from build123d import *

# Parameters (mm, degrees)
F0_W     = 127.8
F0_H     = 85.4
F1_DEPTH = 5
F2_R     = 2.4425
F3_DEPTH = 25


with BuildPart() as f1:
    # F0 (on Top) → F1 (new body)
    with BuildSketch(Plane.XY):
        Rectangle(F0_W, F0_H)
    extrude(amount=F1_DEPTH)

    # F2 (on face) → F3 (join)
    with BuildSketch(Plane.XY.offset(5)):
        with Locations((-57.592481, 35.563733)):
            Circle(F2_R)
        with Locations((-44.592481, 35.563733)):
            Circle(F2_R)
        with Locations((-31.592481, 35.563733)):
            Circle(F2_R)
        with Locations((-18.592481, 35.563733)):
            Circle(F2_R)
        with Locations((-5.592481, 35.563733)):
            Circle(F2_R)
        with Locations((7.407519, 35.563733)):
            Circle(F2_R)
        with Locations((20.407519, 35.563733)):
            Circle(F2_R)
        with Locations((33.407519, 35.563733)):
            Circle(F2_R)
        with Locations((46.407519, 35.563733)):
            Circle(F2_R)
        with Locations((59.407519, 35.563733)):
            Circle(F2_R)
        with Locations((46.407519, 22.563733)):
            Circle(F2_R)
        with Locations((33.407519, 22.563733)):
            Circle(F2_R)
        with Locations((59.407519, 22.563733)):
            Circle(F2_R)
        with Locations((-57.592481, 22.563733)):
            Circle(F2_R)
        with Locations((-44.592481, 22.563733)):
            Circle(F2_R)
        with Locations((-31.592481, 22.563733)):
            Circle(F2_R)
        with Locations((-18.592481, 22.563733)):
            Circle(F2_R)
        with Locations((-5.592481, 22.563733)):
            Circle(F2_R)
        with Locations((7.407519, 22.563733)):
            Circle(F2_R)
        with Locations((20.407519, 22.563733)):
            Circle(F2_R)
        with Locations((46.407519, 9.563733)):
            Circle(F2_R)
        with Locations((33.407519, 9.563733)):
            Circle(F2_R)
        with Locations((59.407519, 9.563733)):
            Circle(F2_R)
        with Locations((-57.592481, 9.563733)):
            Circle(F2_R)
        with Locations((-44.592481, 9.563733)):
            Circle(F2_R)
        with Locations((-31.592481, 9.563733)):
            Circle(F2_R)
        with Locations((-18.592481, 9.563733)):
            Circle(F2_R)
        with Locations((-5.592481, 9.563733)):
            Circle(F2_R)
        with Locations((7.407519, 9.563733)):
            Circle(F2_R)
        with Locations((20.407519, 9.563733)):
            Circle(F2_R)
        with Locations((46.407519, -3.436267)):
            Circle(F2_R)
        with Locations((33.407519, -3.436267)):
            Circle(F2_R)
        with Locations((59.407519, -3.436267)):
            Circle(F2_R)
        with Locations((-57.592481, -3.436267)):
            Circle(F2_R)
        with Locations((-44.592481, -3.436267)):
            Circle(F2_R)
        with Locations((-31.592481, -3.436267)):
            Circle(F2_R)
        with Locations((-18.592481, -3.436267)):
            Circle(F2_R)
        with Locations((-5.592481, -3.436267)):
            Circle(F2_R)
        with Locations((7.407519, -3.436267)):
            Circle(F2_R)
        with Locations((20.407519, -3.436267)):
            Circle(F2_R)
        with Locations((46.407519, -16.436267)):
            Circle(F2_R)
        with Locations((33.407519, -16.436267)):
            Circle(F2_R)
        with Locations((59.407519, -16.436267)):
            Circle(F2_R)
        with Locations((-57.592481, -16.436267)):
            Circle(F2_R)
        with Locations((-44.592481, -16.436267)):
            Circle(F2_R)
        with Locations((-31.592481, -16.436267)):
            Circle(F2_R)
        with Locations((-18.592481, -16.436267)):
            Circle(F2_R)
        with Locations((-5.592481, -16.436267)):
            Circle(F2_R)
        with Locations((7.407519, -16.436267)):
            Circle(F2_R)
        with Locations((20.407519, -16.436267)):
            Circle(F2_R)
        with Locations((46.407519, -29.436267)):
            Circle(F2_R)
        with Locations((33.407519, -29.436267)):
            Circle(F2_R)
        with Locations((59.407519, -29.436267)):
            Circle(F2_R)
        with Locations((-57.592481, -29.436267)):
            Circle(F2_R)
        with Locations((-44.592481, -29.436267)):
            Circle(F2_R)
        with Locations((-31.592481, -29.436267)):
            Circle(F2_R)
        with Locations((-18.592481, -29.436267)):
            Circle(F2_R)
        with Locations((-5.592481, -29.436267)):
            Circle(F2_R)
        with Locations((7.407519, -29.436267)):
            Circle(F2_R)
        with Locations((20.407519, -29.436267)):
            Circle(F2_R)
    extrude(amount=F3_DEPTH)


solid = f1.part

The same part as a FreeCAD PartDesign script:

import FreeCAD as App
import Part
import Sketcher
from FreeCAD import Vector


def add_polygon(sketch, points):
    """Adds a closed chain of lines whose ends are joined by coincident constraints."""
    first, n = sketch.GeometryCount, len(points)
    for a, b in zip(points, points[1:] + points[:1]):
        sketch.addGeometry(Part.LineSegment(App.Vector(*a, 0), App.Vector(*b, 0)), False)
    for i in range(n):
        sketch.addConstraint(Sketcher.Constraint("Coincident", first + i, 2, first + (i + 1) % n, 1))

doc = App.newDocument("Part")
body = doc.addObject("PartDesign::Body", "Body")

# Sketch on XY plane
sketch1 = body.newObject("Sketcher::SketchObject", "Sketch")
sketch1.AttachmentSupport = (doc.getObject("XY_Plane"), [""])
sketch1.MapMode = "FlatFace"
add_polygon(sketch1, [(-64, 43), (-64, -43), (64, -43), (64, 43)])  # lines 0-3
sketch1.addConstraint(Sketcher.Constraint("Vertical", 0))
sketch1.addConstraint(Sketcher.Constraint("Horizontal", 1))
sketch1.addConstraint(Sketcher.Constraint("Vertical", 2))
sketch1.addConstraint(Sketcher.Constraint("Horizontal", 3))
sketch1.addConstraint(Sketcher.Constraint("Symmetric", 0, 2, 2, 2, -1, 1))
sketch1.addConstraint(Sketcher.Constraint("DistanceX", 1, 1, 1, 2, 127.8))
sketch1.addConstraint(Sketcher.Constraint("DistanceY", 0, 2, 0, 1, 85.4))
pad1 = body.newObject("PartDesign::Pad", "Pad")
pad1.Profile = sketch1
pad1.Length = 5

# Sketch on XY plane
sketch2 = body.newObject("Sketcher::SketchObject", "Sketch001")
sketch2.AttachmentSupport = (doc.getObject("XY_Plane"), [""])
sketch2.MapMode = "FlatFace"
sketch2.AttachmentOffset = App.Placement(Vector(0, 0, 5), App.Rotation())
sketch2.addGeometry(Part.Circle(Vector(-57.6, 35.6, 0), Vector(0, 0, 1), 2.4), False)
sketch2.addGeometry(Part.Circle(Vector(-44.6, 35.6, 0), Vector(0, 0, 1), 2.4), False)
sketch2.addGeometry(Part.Circle(Vector(-31.6, 35.6, 0), Vector(0, 0, 1), 2.4), False)
sketch2.addGeometry(Part.Circle(Vector(-18.6, 35.6, 0), Vector(0, 0, 1), 2.4), False)
sketch2.addGeometry(Part.Circle(Vector(-5.6, 35.6, 0), Vector(0, 0, 1), 2.4), False)
sketch2.addGeometry(Part.Circle(Vector(7.4, 35.6, 0), Vector(0, 0, 1), 2.4), False)
sketch2.addGeometry(Part.Circle(Vector(20.4, 35.6, 0), Vector(0, 0, 1), 2.4), False)
sketch2.addGeometry(Part.Circle(Vector(33.4, 35.6, 0), Vector(0, 0, 1), 2.4), False)
sketch2.addGeometry(Part.Circle(Vector(46.4, 35.6, 0), Vector(0, 0, 1), 2.4), False)
sketch2.addGeometry(Part.Circle(Vector(59.4, 35.6, 0), Vector(0, 0, 1), 2.4), False)
sketch2.addGeometry(Part.Circle(Vector(46.4, 22.6, 0), Vector(0, 0, 1), 2.4), False)
sketch2.addGeometry(Part.Circle(Vector(33.4, 22.6, 0), Vector(0, 0, 1), 2.4), False)
sketch2.addGeometry(Part.Circle(Vector(59.4, 22.6, 0), Vector(0, 0, 1), 2.4), False)
sketch2.addGeometry(Part.Circle(Vector(-57.6, 22.6, 0), Vector(0, 0, 1), 2.4), False)
sketch2.addGeometry(Part.Circle(Vector(-44.6, 22.6, 0), Vector(0, 0, 1), 2.4), False)
sketch2.addGeometry(Part.Circle(Vector(-31.6, 22.6, 0), Vector(0, 0, 1), 2.4), False)
sketch2.addGeometry(Part.Circle(Vector(-18.6, 22.6, 0), Vector(0, 0, 1), 2.4), False)
sketch2.addGeometry(Part.Circle(Vector(-5.6, 22.6, 0), Vector(0, 0, 1), 2.4), False)
sketch2.addGeometry(Part.Circle(Vector(7.4, 22.6, 0), Vector(0, 0, 1), 2.4), False)
sketch2.addGeometry(Part.Circle(Vector(20.4, 22.6, 0), Vector(0, 0, 1), 2.4), False)
sketch2.addGeometry(Part.Circle(Vector(46.4, 9.6, 0), Vector(0, 0, 1), 2.4), False)
sketch2.addGeometry(Part.Circle(Vector(33.4, 9.6, 0), Vector(0, 0, 1), 2.4), False)
sketch2.addGeometry(Part.Circle(Vector(59.4, 9.6, 0), Vector(0, 0, 1), 2.4), False)
sketch2.addGeometry(Part.Circle(Vector(-57.6, 9.6, 0), Vector(0, 0, 1), 2.4), False)
sketch2.addGeometry(Part.Circle(Vector(-44.6, 9.6, 0), Vector(0, 0, 1), 2.4), False)
sketch2.addGeometry(Part.Circle(Vector(-31.6, 9.6, 0), Vector(0, 0, 1), 2.4), False)
sketch2.addGeometry(Part.Circle(Vector(-18.6, 9.6, 0), Vector(0, 0, 1), 2.4), False)
sketch2.addGeometry(Part.Circle(Vector(-5.6, 9.6, 0), Vector(0, 0, 1), 2.4), False)
sketch2.addGeometry(Part.Circle(Vector(7.4, 9.6, 0), Vector(0, 0, 1), 2.4), False)
sketch2.addGeometry(Part.Circle(Vector(20.4, 9.6, 0), Vector(0, 0, 1), 2.4), False)
sketch2.addGeometry(Part.Circle(Vector(46.4, -3.4, 0), Vector(0, 0, 1), 2.4), False)
sketch2.addGeometry(Part.Circle(Vector(33.4, -3.4, 0), Vector(0, 0, 1), 2.4), False)
sketch2.addGeometry(Part.Circle(Vector(59.4, -3.4, 0), Vector(0, 0, 1), 2.4), False)
sketch2.addGeometry(Part.Circle(Vector(-57.6, -3.4, 0), Vector(0, 0, 1), 2.4), False)
sketch2.addGeometry(Part.Circle(Vector(-44.6, -3.4, 0), Vector(0, 0, 1), 2.4), False)
sketch2.addGeometry(Part.Circle(Vector(-31.6, -3.4, 0), Vector(0, 0, 1), 2.4), False)
sketch2.addGeometry(Part.Circle(Vector(-18.6, -3.4, 0), Vector(0, 0, 1), 2.4), False)
sketch2.addGeometry(Part.Circle(Vector(-5.6, -3.4, 0), Vector(0, 0, 1), 2.4), False)
sketch2.addGeometry(Part.Circle(Vector(7.4, -3.4, 0), Vector(0, 0, 1), 2.4), False)
sketch2.addGeometry(Part.Circle(Vector(20.4, -3.4, 0), Vector(0, 0, 1), 2.4), False)
sketch2.addGeometry(Part.Circle(Vector(46.4, -16.4, 0), Vector(0, 0, 1), 2.4), False)
sketch2.addGeometry(Part.Circle(Vector(33.4, -16.4, 0), Vector(0, 0, 1), 2.4), False)
sketch2.addGeometry(Part.Circle(Vector(59.4, -16.4, 0), Vector(0, 0, 1), 2.4), False)
sketch2.addGeometry(Part.Circle(Vector(-57.6, -16.4, 0), Vector(0, 0, 1), 2.4), False)
sketch2.addGeometry(Part.Circle(Vector(-44.6, -16.4, 0), Vector(0, 0, 1), 2.4), False)
sketch2.addGeometry(Part.Circle(Vector(-31.6, -16.4, 0), Vector(0, 0, 1), 2.4), False)
sketch2.addGeometry(Part.Circle(Vector(-18.6, -16.4, 0), Vector(0, 0, 1), 2.4), False)
sketch2.addGeometry(Part.Circle(Vector(-5.6, -16.4, 0), Vector(0, 0, 1), 2.4), False)
sketch2.addGeometry(Part.Circle(Vector(7.4, -16.4, 0), Vector(0, 0, 1), 2.4), False)
sketch2.addGeometry(Part.Circle(Vector(20.4, -16.4, 0), Vector(0, 0, 1), 2.4), False)
sketch2.addGeometry(Part.Circle(Vector(46.4, -29.4, 0), Vector(0, 0, 1), 2.4), False)
sketch2.addGeometry(Part.Circle(Vector(33.4, -29.4, 0), Vector(0, 0, 1), 2.4), False)
sketch2.addGeometry(Part.Circle(Vector(59.4, -29.4, 0), Vector(0, 0, 1), 2.4), False)
sketch2.addGeometry(Part.Circle(Vector(-57.6, -29.4, 0), Vector(0, 0, 1), 2.4), False)
sketch2.addGeometry(Part.Circle(Vector(-44.6, -29.4, 0), Vector(0, 0, 1), 2.4), False)
sketch2.addGeometry(Part.Circle(Vector(-31.6, -29.4, 0), Vector(0, 0, 1), 2.4), False)
sketch2.addGeometry(Part.Circle(Vector(-18.6, -29.4, 0), Vector(0, 0, 1), 2.4), False)
sketch2.addGeometry(Part.Circle(Vector(-5.6, -29.4, 0), Vector(0, 0, 1), 2.4), False)
sketch2.addGeometry(Part.Circle(Vector(7.4, -29.4, 0), Vector(0, 0, 1), 2.4), False)
sketch2.addGeometry(Part.Circle(Vector(20.4, -29.4, 0), Vector(0, 0, 1), 2.4), False)
sketch2.addConstraint(Sketcher.Constraint("Equal", 0, 1))
sketch2.addConstraint(Sketcher.Constraint("Equal", 1, 2))
sketch2.addConstraint(Sketcher.Constraint("Equal", 2, 3))
sketch2.addConstraint(Sketcher.Constraint("Equal", 3, 4))
sketch2.addConstraint(Sketcher.Constraint("Equal", 4, 5))
sketch2.addConstraint(Sketcher.Constraint("Equal", 5, 6))
sketch2.addConstraint(Sketcher.Constraint("Equal", 6, 7))
sketch2.addConstraint(Sketcher.Constraint("Equal", 7, 8))
sketch2.addConstraint(Sketcher.Constraint("Equal", 8, 9))
sketch2.addConstraint(Sketcher.Constraint("Equal", 9, 10))
sketch2.addConstraint(Sketcher.Constraint("Equal", 10, 11))
sketch2.addConstraint(Sketcher.Constraint("Equal", 11, 12))
sketch2.addConstraint(Sketcher.Constraint("Equal", 12, 13))
sketch2.addConstraint(Sketcher.Constraint("Equal", 13, 14))
sketch2.addConstraint(Sketcher.Constraint("Equal", 14, 15))
sketch2.addConstraint(Sketcher.Constraint("Equal", 15, 16))
sketch2.addConstraint(Sketcher.Constraint("Equal", 16, 17))
sketch2.addConstraint(Sketcher.Constraint("Equal", 17, 18))
sketch2.addConstraint(Sketcher.Constraint("Equal", 18, 19))
sketch2.addConstraint(Sketcher.Constraint("Equal", 19, 20))
sketch2.addConstraint(Sketcher.Constraint("Equal", 20, 21))
sketch2.addConstraint(Sketcher.Constraint("Equal", 21, 22))
sketch2.addConstraint(Sketcher.Constraint("Equal", 22, 23))
sketch2.addConstraint(Sketcher.Constraint("Equal", 23, 24))
sketch2.addConstraint(Sketcher.Constraint("Equal", 24, 25))
sketch2.addConstraint(Sketcher.Constraint("Equal", 25, 26))
sketch2.addConstraint(Sketcher.Constraint("Equal", 26, 27))
sketch2.addConstraint(Sketcher.Constraint("Equal", 27, 28))
sketch2.addConstraint(Sketcher.Constraint("Equal", 28, 29))
sketch2.addConstraint(Sketcher.Constraint("Equal", 29, 30))
sketch2.addConstraint(Sketcher.Constraint("Equal", 30, 31))
sketch2.addConstraint(Sketcher.Constraint("Equal", 31, 32))
sketch2.addConstraint(Sketcher.Constraint("Equal", 32, 33))
sketch2.addConstraint(Sketcher.Constraint("Equal", 33, 34))
sketch2.addConstraint(Sketcher.Constraint("Equal", 34, 35))
sketch2.addConstraint(Sketcher.Constraint("Equal", 35, 36))
sketch2.addConstraint(Sketcher.Constraint("Equal", 36, 37))
sketch2.addConstraint(Sketcher.Constraint("Equal", 37, 38))
sketch2.addConstraint(Sketcher.Constraint("Equal", 38, 39))
sketch2.addConstraint(Sketcher.Constraint("Equal", 39, 40))
sketch2.addConstraint(Sketcher.Constraint("Equal", 40, 41))
sketch2.addConstraint(Sketcher.Constraint("Equal", 41, 42))
sketch2.addConstraint(Sketcher.Constraint("Equal", 42, 43))
sketch2.addConstraint(Sketcher.Constraint("Equal", 43, 44))
sketch2.addConstraint(Sketcher.Constraint("Equal", 44, 45))
sketch2.addConstraint(Sketcher.Constraint("Equal", 45, 46))
sketch2.addConstraint(Sketcher.Constraint("Equal", 46, 47))
sketch2.addConstraint(Sketcher.Constraint("Equal", 47, 48))
sketch2.addConstraint(Sketcher.Constraint("Equal", 48, 49))
sketch2.addConstraint(Sketcher.Constraint("Equal", 49, 50))
sketch2.addConstraint(Sketcher.Constraint("Equal", 50, 51))
sketch2.addConstraint(Sketcher.Constraint("Equal", 51, 52))
sketch2.addConstraint(Sketcher.Constraint("Equal", 52, 53))
sketch2.addConstraint(Sketcher.Constraint("Equal", 53, 54))
sketch2.addConstraint(Sketcher.Constraint("Equal", 54, 55))
sketch2.addConstraint(Sketcher.Constraint("Equal", 55, 56))
sketch2.addConstraint(Sketcher.Constraint("Equal", 56, 57))
sketch2.addConstraint(Sketcher.Constraint("Equal", 57, 58))
sketch2.addConstraint(Sketcher.Constraint("Equal", 58, 59))
sketch2.addConstraint(Sketcher.Constraint("Horizontal", 0, 3, 1, 3))
sketch2.addConstraint(Sketcher.Constraint("Horizontal", 1, 3, 2, 3))
sketch2.addConstraint(Sketcher.Constraint("Horizontal", 2, 3, 3, 3))
sketch2.addConstraint(Sketcher.Constraint("Horizontal", 3, 3, 4, 3))
sketch2.addConstraint(Sketcher.Constraint("Horizontal", 4, 3, 5, 3))
sketch2.addConstraint(Sketcher.Constraint("Horizontal", 5, 3, 6, 3))
sketch2.addConstraint(Sketcher.Constraint("Horizontal", 6, 3, 7, 3))
sketch2.addConstraint(Sketcher.Constraint("Horizontal", 7, 3, 8, 3))
sketch2.addConstraint(Sketcher.Constraint("Horizontal", 8, 3, 9, 3))
sketch2.addConstraint(Sketcher.Constraint("Horizontal", 10, 3, 11, 3))
sketch2.addConstraint(Sketcher.Constraint("Horizontal", 11, 3, 12, 3))
sketch2.addConstraint(Sketcher.Constraint("Horizontal", 12, 3, 13, 3))
sketch2.addConstraint(Sketcher.Constraint("Horizontal", 13, 3, 14, 3))
sketch2.addConstraint(Sketcher.Constraint("Horizontal", 14, 3, 15, 3))
sketch2.addConstraint(Sketcher.Constraint("Horizontal", 15, 3, 16, 3))
sketch2.addConstraint(Sketcher.Constraint("Horizontal", 16, 3, 17, 3))
sketch2.addConstraint(Sketcher.Constraint("Horizontal", 17, 3, 18, 3))
sketch2.addConstraint(Sketcher.Constraint("Horizontal", 18, 3, 19, 3))
sketch2.addConstraint(Sketcher.Constraint("Horizontal", 20, 3, 21, 3))
sketch2.addConstraint(Sketcher.Constraint("Horizontal", 21, 3, 22, 3))
sketch2.addConstraint(Sketcher.Constraint("Horizontal", 22, 3, 23, 3))
sketch2.addConstraint(Sketcher.Constraint("Horizontal", 23, 3, 24, 3))
sketch2.addConstraint(Sketcher.Constraint("Horizontal", 24, 3, 25, 3))
sketch2.addConstraint(Sketcher.Constraint("Horizontal", 25, 3, 26, 3))
sketch2.addConstraint(Sketcher.Constraint("Horizontal", 26, 3, 27, 3))
sketch2.addConstraint(Sketcher.Constraint("Horizontal", 27, 3, 28, 3))
sketch2.addConstraint(Sketcher.Constraint("Horizontal", 28, 3, 29, 3))
sketch2.addConstraint(Sketcher.Constraint("Horizontal", 30, 3, 31, 3))
sketch2.addConstraint(Sketcher.Constraint("Horizontal", 31, 3, 32, 3))
sketch2.addConstraint(Sketcher.Constraint("Horizontal", 32, 3, 33, 3))
sketch2.addConstraint(Sketcher.Constraint("Horizontal", 33, 3, 34, 3))
sketch2.addConstraint(Sketcher.Constraint("Horizontal", 34, 3, 35, 3))
sketch2.addConstraint(Sketcher.Constraint("Horizontal", 35, 3, 36, 3))
sketch2.addConstraint(Sketcher.Constraint("Horizontal", 36, 3, 37, 3))
sketch2.addConstraint(Sketcher.Constraint("Horizontal", 37, 3, 38, 3))
sketch2.addConstraint(Sketcher.Constraint("Horizontal", 38, 3, 39, 3))
sketch2.addConstraint(Sketcher.Constraint("Horizontal", 40, 3, 41, 3))
sketch2.addConstraint(Sketcher.Constraint("Horizontal", 41, 3, 42, 3))
sketch2.addConstraint(Sketcher.Constraint("Horizontal", 42, 3, 43, 3))
sketch2.addConstraint(Sketcher.Constraint("Horizontal", 43, 3, 44, 3))
sketch2.addConstraint(Sketcher.Constraint("Horizontal", 44, 3, 45, 3))
sketch2.addConstraint(Sketcher.Constraint("Horizontal", 45, 3, 46, 3))
sketch2.addConstraint(Sketcher.Constraint("Horizontal", 46, 3, 47, 3))
sketch2.addConstraint(Sketcher.Constraint("Horizontal", 47, 3, 48, 3))
sketch2.addConstraint(Sketcher.Constraint("Horizontal", 48, 3, 49, 3))
sketch2.addConstraint(Sketcher.Constraint("Horizontal", 50, 3, 51, 3))
sketch2.addConstraint(Sketcher.Constraint("Horizontal", 51, 3, 52, 3))
sketch2.addConstraint(Sketcher.Constraint("Horizontal", 52, 3, 53, 3))
sketch2.addConstraint(Sketcher.Constraint("Horizontal", 53, 3, 54, 3))
sketch2.addConstraint(Sketcher.Constraint("Horizontal", 54, 3, 55, 3))
sketch2.addConstraint(Sketcher.Constraint("Horizontal", 55, 3, 56, 3))
sketch2.addConstraint(Sketcher.Constraint("Horizontal", 56, 3, 57, 3))
sketch2.addConstraint(Sketcher.Constraint("Horizontal", 57, 3, 58, 3))
sketch2.addConstraint(Sketcher.Constraint("Horizontal", 58, 3, 59, 3))
sketch2.addConstraint(Sketcher.Constraint("Vertical", 8, 3, 10, 3))
sketch2.addConstraint(Sketcher.Constraint("Vertical", 7, 3, 11, 3))
sketch2.addConstraint(Sketcher.Constraint("Vertical", 9, 3, 12, 3))
sketch2.addConstraint(Sketcher.Constraint("Vertical", 0, 3, 13, 3))
sketch2.addConstraint(Sketcher.Constraint("Vertical", 1, 3, 14, 3))
sketch2.addConstraint(Sketcher.Constraint("Vertical", 2, 3, 15, 3))
sketch2.addConstraint(Sketcher.Constraint("Vertical", 3, 3, 16, 3))
sketch2.addConstraint(Sketcher.Constraint("Vertical", 4, 3, 17, 3))
sketch2.addConstraint(Sketcher.Constraint("Vertical", 5, 3, 18, 3))
sketch2.addConstraint(Sketcher.Constraint("Vertical", 6, 3, 19, 3))
sketch2.addConstraint(Sketcher.Constraint("Vertical", 10, 3, 20, 3))
sketch2.addConstraint(Sketcher.Constraint("Vertical", 11, 3, 21, 3))
sketch2.addConstraint(Sketcher.Constraint("Vertical", 12, 3, 22, 3))
sketch2.addConstraint(Sketcher.Constraint("Vertical", 13, 3, 23, 3))
sketch2.addConstraint(Sketcher.Constraint("Vertical", 14, 3, 24, 3))
sketch2.addConstraint(Sketcher.Constraint("Vertical", 15, 3, 25, 3))
sketch2.addConstraint(Sketcher.Constraint("Vertical", 16, 3, 26, 3))
sketch2.addConstraint(Sketcher.Constraint("Vertical", 17, 3, 27, 3))
sketch2.addConstraint(Sketcher.Constraint("Vertical", 18, 3, 28, 3))
sketch2.addConstraint(Sketcher.Constraint("Vertical", 19, 3, 29, 3))
sketch2.addConstraint(Sketcher.Constraint("Vertical", 20, 3, 30, 3))
sketch2.addConstraint(Sketcher.Constraint("Vertical", 21, 3, 31, 3))
sketch2.addConstraint(Sketcher.Constraint("Vertical", 22, 3, 32, 3))
sketch2.addConstraint(Sketcher.Constraint("Vertical", 23, 3, 33, 3))
sketch2.addConstraint(Sketcher.Constraint("Vertical", 24, 3, 34, 3))
sketch2.addConstraint(Sketcher.Constraint("Vertical", 25, 3, 35, 3))
sketch2.addConstraint(Sketcher.Constraint("Vertical", 26, 3, 36, 3))
sketch2.addConstraint(Sketcher.Constraint("Vertical", 27, 3, 37, 3))
sketch2.addConstraint(Sketcher.Constraint("Vertical", 28, 3, 38, 3))
sketch2.addConstraint(Sketcher.Constraint("Vertical", 29, 3, 39, 3))
sketch2.addConstraint(Sketcher.Constraint("Vertical", 30, 3, 40, 3))
sketch2.addConstraint(Sketcher.Constraint("Vertical", 31, 3, 41, 3))
sketch2.addConstraint(Sketcher.Constraint("Vertical", 32, 3, 42, 3))
sketch2.addConstraint(Sketcher.Constraint("Vertical", 33, 3, 43, 3))
sketch2.addConstraint(Sketcher.Constraint("Vertical", 34, 3, 44, 3))
sketch2.addConstraint(Sketcher.Constraint("Vertical", 35, 3, 45, 3))
sketch2.addConstraint(Sketcher.Constraint("Vertical", 36, 3, 46, 3))
sketch2.addConstraint(Sketcher.Constraint("Vertical", 37, 3, 47, 3))
sketch2.addConstraint(Sketcher.Constraint("Vertical", 38, 3, 48, 3))
sketch2.addConstraint(Sketcher.Constraint("Vertical", 39, 3, 49, 3))
sketch2.addConstraint(Sketcher.Constraint("Vertical", 40, 3, 50, 3))
sketch2.addConstraint(Sketcher.Constraint("Vertical", 41, 3, 51, 3))
sketch2.addConstraint(Sketcher.Constraint("Vertical", 42, 3, 52, 3))
sketch2.addConstraint(Sketcher.Constraint("Vertical", 43, 3, 53, 3))
sketch2.addConstraint(Sketcher.Constraint("Vertical", 44, 3, 54, 3))
sketch2.addConstraint(Sketcher.Constraint("Vertical", 45, 3, 55, 3))
sketch2.addConstraint(Sketcher.Constraint("Vertical", 46, 3, 56, 3))
sketch2.addConstraint(Sketcher.Constraint("Vertical", 47, 3, 57, 3))
sketch2.addConstraint(Sketcher.Constraint("Vertical", 48, 3, 58, 3))
sketch2.addConstraint(Sketcher.Constraint("Vertical", 49, 3, 59, 3))
sketch2.addConstraint(Sketcher.Constraint("Diameter", 0, 4.885))
sketch2.addConstraint(Sketcher.Constraint("DistanceX", 0, 3, 1, 3, 13.0))
sketch2.addConstraint(Sketcher.Constraint("DistanceX", 1, 3, 2, 3, 13.0))
sketch2.addConstraint(Sketcher.Constraint("DistanceX", 2, 3, 3, 3, 13.0))
sketch2.addConstraint(Sketcher.Constraint("DistanceX", 3, 3, 4, 3, 13.0))
sketch2.addConstraint(Sketcher.Constraint("DistanceX", 4, 3, 5, 3, 13.0))
sketch2.addConstraint(Sketcher.Constraint("DistanceX", 5, 3, 6, 3, 13.0))
sketch2.addConstraint(Sketcher.Constraint("DistanceX", 6, 3, 7, 3, 13.0))
sketch2.addConstraint(Sketcher.Constraint("DistanceX", 7, 3, 8, 3, 13.0))
sketch2.addConstraint(Sketcher.Constraint("DistanceX", 8, 3, 9, 3, 13.0))
sketch2.addConstraint(Sketcher.Constraint("DistanceY", 10, 3, 8, 3, 13.0))
sketch2.addConstraint(Sketcher.Constraint("DistanceY", 20, 3, 10, 3, 13.0))
sketch2.addConstraint(Sketcher.Constraint("DistanceY", 30, 3, 20, 3, 13.0))
sketch2.addConstraint(Sketcher.Constraint("DistanceY", 40, 3, 30, 3, 13.0))
sketch2.addConstraint(Sketcher.Constraint("DistanceY", 50, 3, 40, 3, 13.0))
sketch2.addConstraint(Sketcher.Constraint("DistanceX", 0, 3, -1, 1, 57.592481))
sketch2.addConstraint(Sketcher.Constraint("DistanceY", -1, 1, 0, 3, 35.563733))
pad2 = body.newObject("PartDesign::Pad", "Pad001")
pad2.Profile = sketch2
pad2.Length = 25

doc.recompute()
